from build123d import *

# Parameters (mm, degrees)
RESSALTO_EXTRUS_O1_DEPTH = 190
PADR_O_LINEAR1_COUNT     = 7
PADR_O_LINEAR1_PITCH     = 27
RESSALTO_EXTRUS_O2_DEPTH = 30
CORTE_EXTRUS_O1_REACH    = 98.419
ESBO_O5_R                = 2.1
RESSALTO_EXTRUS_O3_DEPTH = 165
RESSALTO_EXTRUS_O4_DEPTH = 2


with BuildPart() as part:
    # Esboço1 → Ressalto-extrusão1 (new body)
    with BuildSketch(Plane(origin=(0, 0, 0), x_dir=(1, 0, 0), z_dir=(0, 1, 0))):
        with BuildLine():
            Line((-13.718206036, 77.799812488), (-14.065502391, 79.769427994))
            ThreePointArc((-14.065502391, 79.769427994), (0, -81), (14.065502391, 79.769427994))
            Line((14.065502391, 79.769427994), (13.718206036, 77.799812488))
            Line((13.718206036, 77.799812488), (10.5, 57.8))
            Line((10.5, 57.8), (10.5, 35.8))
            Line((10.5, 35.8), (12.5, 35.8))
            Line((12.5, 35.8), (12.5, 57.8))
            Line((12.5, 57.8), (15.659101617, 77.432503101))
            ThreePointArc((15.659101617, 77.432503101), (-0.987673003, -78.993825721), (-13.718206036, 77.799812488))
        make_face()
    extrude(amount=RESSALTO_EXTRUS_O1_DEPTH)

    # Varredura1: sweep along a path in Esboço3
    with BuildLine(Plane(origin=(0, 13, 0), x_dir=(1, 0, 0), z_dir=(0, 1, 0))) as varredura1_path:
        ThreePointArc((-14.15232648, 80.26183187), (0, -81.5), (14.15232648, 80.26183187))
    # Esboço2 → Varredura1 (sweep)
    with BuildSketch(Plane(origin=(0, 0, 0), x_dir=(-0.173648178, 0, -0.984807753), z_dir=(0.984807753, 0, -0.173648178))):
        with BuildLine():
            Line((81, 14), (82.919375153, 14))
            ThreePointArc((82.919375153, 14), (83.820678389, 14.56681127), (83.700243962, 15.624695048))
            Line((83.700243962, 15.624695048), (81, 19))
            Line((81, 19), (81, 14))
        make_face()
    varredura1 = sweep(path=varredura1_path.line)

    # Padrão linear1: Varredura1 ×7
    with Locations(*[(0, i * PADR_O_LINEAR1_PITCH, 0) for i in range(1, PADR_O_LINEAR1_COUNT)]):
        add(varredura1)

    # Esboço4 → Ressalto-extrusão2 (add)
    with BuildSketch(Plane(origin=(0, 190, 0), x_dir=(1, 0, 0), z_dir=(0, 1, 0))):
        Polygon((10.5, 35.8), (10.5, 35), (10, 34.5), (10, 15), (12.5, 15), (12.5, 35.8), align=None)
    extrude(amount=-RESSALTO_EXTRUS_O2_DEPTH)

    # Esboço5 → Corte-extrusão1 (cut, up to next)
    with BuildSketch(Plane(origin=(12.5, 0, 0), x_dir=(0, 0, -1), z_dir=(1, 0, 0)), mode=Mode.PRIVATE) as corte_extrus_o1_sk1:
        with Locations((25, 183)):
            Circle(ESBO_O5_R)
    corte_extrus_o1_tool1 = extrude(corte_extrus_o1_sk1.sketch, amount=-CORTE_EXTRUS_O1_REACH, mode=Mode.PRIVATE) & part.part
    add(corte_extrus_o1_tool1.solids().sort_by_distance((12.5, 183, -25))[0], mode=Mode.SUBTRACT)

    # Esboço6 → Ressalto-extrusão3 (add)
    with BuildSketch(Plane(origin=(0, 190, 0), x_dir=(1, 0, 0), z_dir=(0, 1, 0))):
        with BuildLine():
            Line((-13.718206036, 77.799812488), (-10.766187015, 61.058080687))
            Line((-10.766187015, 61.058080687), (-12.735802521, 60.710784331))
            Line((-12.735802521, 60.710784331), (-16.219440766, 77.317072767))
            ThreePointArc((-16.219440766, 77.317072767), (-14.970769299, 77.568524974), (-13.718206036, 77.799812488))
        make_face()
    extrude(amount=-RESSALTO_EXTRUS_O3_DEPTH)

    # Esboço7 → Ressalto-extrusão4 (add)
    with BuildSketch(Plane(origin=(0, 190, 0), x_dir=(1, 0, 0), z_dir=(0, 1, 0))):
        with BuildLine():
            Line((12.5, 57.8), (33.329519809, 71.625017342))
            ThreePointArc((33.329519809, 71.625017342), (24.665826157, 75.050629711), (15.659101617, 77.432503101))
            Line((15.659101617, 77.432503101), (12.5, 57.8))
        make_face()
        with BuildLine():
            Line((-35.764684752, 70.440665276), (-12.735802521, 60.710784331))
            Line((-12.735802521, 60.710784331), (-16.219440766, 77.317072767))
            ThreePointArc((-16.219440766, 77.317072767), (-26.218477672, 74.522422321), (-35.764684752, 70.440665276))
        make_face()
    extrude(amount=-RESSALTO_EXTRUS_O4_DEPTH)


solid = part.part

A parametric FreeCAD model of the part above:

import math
import FreeCAD as App
import Part
import Sketcher
Q = App.Units.Quantity


def add_polygon(sketch, points):
    """Adds a closed chain of lines whose ends are joined by coincident constraints."""
    first, n = sketch.GeometryCount, len(points)
    for a, b in zip(points, points[1:] + points[:1]):
        sketch.addGeometry(Part.LineSegment(App.Vector(*a, 0), App.Vector(*b, 0)), False)
    for i in range(n):
        sketch.addConstraint(Sketcher.Constraint("Coincident", first + i, 2, first + (i + 1) % n, 1))

doc = App.newDocument("Part")
params = doc.addObject("Spreadsheet::Sheet", "Params")
for row, (alias, value) in enumerate([
    ("sketch1_radius", "81 mm"),
    ("sketch1_radius2", "79 mm"),
    ("sketch1_width", "2 mm"),
    ("sketch1_height", "22 mm"),
    ("pad1_length", "190 mm"),
    ("sketch2_radius", "1 mm"),
    ("sketch2_height", "5 mm"),
    ("sketch3_radius", "81.5 mm"),
    ("linearpattern_pitch", "27 mm"),
    ("sketch4_width", "2 mm"),
    ("sketch4_width2", "2.5 mm"),
    ("sketch4_height", "0.8 mm"),
    ("sketch4_height2", "19.5 mm"),
    ("pad2_length", "30 mm"),
    ("sketch5_diameter", "4.2 mm"),
    ("sketch6_radius", "78.999999 mm"),
    ("sketch6_length", "17 mm"),
    ("sketch6_length2", "2 mm"),
    ("pad3_length", "165 mm"),
    ("sketch7_radius", "79 mm"),
    ("sketch7_length", "25 mm"),
    ("pad4_length", "2 mm"),
], start=1):
    params.set(f"A{row}", alias)
    params.set(f"B{row}", "=" + value)
    params.setAlias(f"B{row}", alias)

body = doc.addObject("PartDesign::Body", "Body")

# Sketch on XZ plane
sketch1 = body.newObject("Sketcher::SketchObject", "Sketch")
sketch1.AttachmentSupport = (doc.getObject("XZ_Plane"), [""])
sketch1.MapMode = "FlatFace"
sketch1.addGeometry(Part.LineSegment(App.Vector(-13.7, -77.8, 0), App.Vector(-14.1, -79.8, 0)), False)
sketch1.addGeometry(Part.ArcOfCircle(Part.Circle(App.Vector(0, 0, 0), App.Vector(0, 0, 1), 81), math.radians(-80), math.radians(260)), False)
sketch1.addGeometry(Part.LineSegment(App.Vector(14.1, -79.8, 0), App.Vector(13.7, -77.8, 0)), False)
sketch1.addGeometry(Part.LineSegment(App.Vector(13.7, -77.8, 0), App.Vector(10.5, -57.8, 0)), False)
sketch1.addGeometry(Part.LineSegment(App.Vector(10.5, -57.8, 0), App.Vector(10.5, -35.8, 0)), False)
sketch1.addGeometry(Part.LineSegment(App.Vector(10.5, -35.8, 0), App.Vector(12.5, -35.8, 0)), False)
sketch1.addGeometry(Part.LineSegment(App.Vector(12.5, -35.8, 0), App.Vector(12.5, -57.8, 0)), False)
sketch1.addGeometry(Part.LineSegment(App.Vector(12.5, -57.8, 0), App.Vector(15.7, -77.4, 0)), False)
sketch1.addGeometry(Part.ArcOfCircle(Part.Circle(App.Vector(0, 0, 0), App.Vector(0, 0, 1), 79), math.radians(-79), math.radians(260)), False)
sketch1.addConstraint(Sketcher.Constraint("Coincident", 0, 2, 1, 2))
sketch1.addConstraint(Sketcher.Constraint("Coincident", 1, 1, 2, 1))
sketch1.addConstraint(Sketcher.Constraint("Coincident", 2, 2, 3, 1))
sketch1.addConstraint(Sketcher.Constraint("Coincident", 3, 2, 4, 1))
sketch1.addConstraint(Sketcher.Constraint("Coincident", 4, 2, 5, 1))
sketch1.addConstraint(Sketcher.Constraint("Coincident", 5, 2, 6, 1))
sketch1.addConstraint(Sketcher.Constraint("Coincident", 6, 2, 7, 1))
sketch1.addConstraint(Sketcher.Constraint("Coincident", 7, 2, 8, 1))
sketch1.addConstraint(Sketcher.Constraint("Coincident", 8, 2, 0, 1))
sketch1.addConstraint(Sketcher.Constraint("Vertical", 4))
sketch1.addConstraint(Sketcher.Constraint("Horizontal", 5))
sketch1.addConstraint(Sketcher.Constraint("Vertical", 6))
sketch1.addConstraint(Sketcher.Constraint("Coincident", 1, 3, -1, 1))
sketch1.addConstraint(Sketcher.Constraint("Coincident", 8, 3, -1, 1))
sketch1.addConstraint(Sketcher.Constraint("Symmetric", 2, 2, 8, 2, -2))
sketch1.addConstraint(Sketcher.Constraint("Parallel", 3, 7))
sketch1.addConstraint(Sketcher.Constraint("Horizontal", 0, 2, 1, 1))
sketch1.addConstraint(Sketcher.Constraint("Horizontal", 3, 2, 6, 2))
sketch1.addConstraint(Sketcher.Constraint("Radius", 1, 81.0))
sketch1.addConstraint(Sketcher.Constraint("Radius", 8, 79.0))
sketch1.addConstraint(Sketcher.Constraint("DistanceX", 5, 1, 5, 2, 2.0))
sketch1.addConstraint(Sketcher.Constraint("DistanceY", 4, 1, 4, 2, 22.0))
sketch1.addConstraint(Sketcher.Constraint("Angle", 0, Q("-100 deg")))
sketch1.addConstraint(Sketcher.Constraint("DistanceX", -1, 1, 3, 2, 10.5))
sketch1.addConstraint(Sketcher.Constraint("DistanceY", 3, 2, -1, 1, 57.8))
sketch1.addConstraint(Sketcher.Constraint("DistanceX", -1, 1, 7, 2, 15.659102))
sketch1.setExpression("Constraints[18]", "Params.sketch1_radius")
sketch1.setExpression("Constraints[19]", "Params.sketch1_radius2")
sketch1.setExpression("Constraints[20]", "Params.sketch1_width")
sketch1.setExpression("Constraints[21]", "Params.sketch1_height")
pad1 = body.newObject("PartDesign::Pad", "Pad")
pad1.Profile = sketch1
pad1.setExpression("Length", "Params.pad1_length")
pad1.Reversed = True

# Sketch on an angled plane
sketch2 = body.newObject("Sketcher::SketchObject", "Sketch001")
sketch2.Placement = App.Placement(App.Vector(0, 0, 0), App.Rotation(App.Vector(-0.173648178, 0, -0.984807753), App.Vector(0, 1, 0), App.Vector(0.984807753, 0, -0.173648178), "ZXY"))
sketch2.addGeometry(Part.LineSegment(App.Vector(81, 14, 0), App.Vector(82.9, 14, 0)), False)
sketch2.addGeometry(Part.ArcOfCircle(Part.Circle(App.Vector(82.9, 15, 0), App.Vector(0, 0, 1), 1), math.radians(-90), math.radians(39)), False)
sketch2.addGeometry(Part.LineSegment(App.Vector(83.7, 15.6, 0), App.Vector(81, 19, 0)), False)
sketch2.addGeometry(Part.LineSegment(App.Vector(81, 19, 0), App.Vector(81, 14, 0)), False)
sketch2.addConstraint(Sketcher.Constraint("Tangent", 0, 2, 1, 1))
sketch2.addConstraint(Sketcher.Constraint("Tangent", 1, 2, 2, 1))
sketch2.addConstraint(Sketcher.Constraint("Coincident", 2, 2, 3, 1))
sketch2.addConstraint(Sketcher.Constraint("Coincident", 3, 2, 0, 1))
sketch2.addConstraint(Sketcher.Constraint("Horizontal", 0))
sketch2.addConstraint(Sketcher.Constraint("Vertical", 3))
sketch2.addConstraint(Sketcher.Constraint("Radius", 1, 1.0))
sketch2.addConstraint(Sketcher.Constraint("DistanceY", 3, 2, 3, 1, 5.0))
sketch2.addConstraint(Sketcher.Constraint("DistanceY", -1, 1, 1, 3, 15.0))
sketch2.addConstraint(Sketcher.Constraint("DistanceX", -1, 1, 2, 2, 81.0))
sketch2.addConstraint(Sketcher.Constraint("Distance", 2, 4.322499))
sketch2.setExpression("Constraints[6]", "Params.sketch2_radius")
sketch2.setExpression("Constraints[7]", "Params.sketch2_height")

# Sketch on XZ plane
sketch3 = body.newObject("Sketcher::SketchObject", "Sketch002")
sketch3.AttachmentSupport = (doc.getObject("XZ_Plane"), [""])
sketch3.MapMode = "FlatFace"
sketch3.AttachmentOffset = App.Placement(App.Vector(0, 0, -13), App.Rotation())
sketch3.addGeometry(Part.ArcOfCircle(Part.Circle(App.Vector(0, 0, 0), App.Vector(0, 0, 1), 82), math.radians(-80), math.radians(260)), False)
sketch3.addConstraint(Sketcher.Constraint("Coincident", 0, 3, -1, 1))
sketch3.addConstraint(Sketcher.Constraint("Radius", 0, 81.5))
sketch3.addConstraint(Sketcher.Constraint("DistanceY", 0, 1, -1, 1, 80.261832))
sketch3.addConstraint(Sketcher.Constraint("DistanceY", 0, 2, -1, 1, 80.261832))
sketch3.setExpression("Constraints[1]", "Params.sketch3_radius")
doc.recompute()

additivepipe = body.newObject("PartDesign::AdditivePipe", "AdditivePipe")
additivepipe.Profile = sketch2
additivepipe.Spine = (sketch3, ["Edge1"])
doc.recompute()

linearpattern = body.newObject("PartDesign::LinearPattern", "LinearPattern")
linearpattern.Originals = [additivepipe]
linearpattern.Direction = (doc.getObject("Y_Axis"), [""])
linearpattern.Mode = "offset"
linearpattern.setExpression("Offset", "Params.linearpattern_pitch")
linearpattern.Occurrences = 7
body.Tip = linearpattern

# Sketch on XZ plane
sketch4 = body.newObject("Sketcher::SketchObject", "Sketch003")
sketch4.AttachmentSupport = (doc.getObject("XZ_Plane"), [""])
sketch4.MapMode = "FlatFace"
sketch4.AttachmentOffset = App.Placement(App.Vector(0, 0, -190), App.Rotation())
add_polygon(sketch4, [(10.5, -35.8), (10.5, -35), (10, -34.5), (10, -15), (12.5, -15), (12.5, -35.8)])  # lines 0-5
sketch4.addConstraint(Sketcher.Constraint("Vertical", 0))
sketch4.addConstraint(Sketcher.Constraint("Vertical", 2))
sketch4.addConstraint(Sketcher.Constraint("Horizontal", 3))
sketch4.addConstraint(Sketcher.Constraint("Vertical", 4))
sketch4.addConstraint(Sketcher.Constraint("Horizontal", 5))
sketch4.addConstraint(Sketcher.Constraint("DistanceX", 5, 2, 5, 1, 2.0))
sketch4.addConstraint(Sketcher.Constraint("Angle", 1, Q("135 deg")))
sketch4.addConstraint(Sketcher.Constraint("DistanceX", 3, 1, 3, 2, 2.5))
sketch4.addConstraint(Sketcher.Constraint("DistanceY", 0, 1, 0, 2, 0.8))
sketch4.addConstraint(Sketcher.Constraint("DistanceY", 2, 1, 2, 2, 19.5))
sketch4.addConstraint(Sketcher.Constraint("DistanceY", 0, 2, -1, 1, 35.0))
sketch4.addConstraint(Sketcher.Constraint("DistanceX", -1, 1, 1, 2, 10.0))
sketch4.setExpression("Constraints[11]", "Params.sketch4_width")
sketch4.setExpression("Constraints[13]", "Params.sketch4_width2")
sketch4.setExpression("Constraints[14]", "Params.sketch4_height")
sketch4.setExpression("Constraints[15]", "Params.sketch4_height2")
pad2 = body.newObject("PartDesign::Pad", "Pad001")
pad2.Profile = sketch4
pad2.setExpression("Length", "Params.pad2_length")

# Sketch on YZ plane
sketch5 = body.newObject("Sketcher::SketchObject", "Sketch004")
sketch5.AttachmentSupport = (doc.getObject("YZ_Plane"), [""])
sketch5.MapMode = "FlatFace"
sketch5.AttachmentOffset = App.Placement(App.Vector(0, 0, 12.5), App.Rotation())
sketch5.addGeometry(Part.Circle(App.Vector(183, -25, 0), App.Vector(0, 0, 1), 2.1), False)
sketch5.addConstraint(Sketcher.Constraint("Diameter", 0, 4.2))
sketch5.addConstraint(Sketcher.Constraint("DistanceX", -1, 1, 0, 3, 183.0))
sketch5.addConstraint(Sketcher.Constraint("DistanceY", 0, 3, -1, 1, 25.0))
sketch5.setExpression("Constraints[0]", "Params.sketch5_diameter")
pocket1 = body.newObject("PartDesign::Pocket", "Pocket")
pocket1.Profile = sketch5
pocket1.Type = "UpToFirst"

# Sketch on XZ plane
sketch6 = body.newObject("Sketcher::SketchObject", "Sketch005")
sketch6.AttachmentSupport = (doc.getObject("XZ_Plane"), [""])
sketch6.MapMode = "FlatFace"
sketch6.AttachmentOffset = App.Placement(App.Vector(0, 0, -190), App.Rotation())
sketch6.addGeometry(Part.LineSegment(App.Vector(-10.8, -61.1, 0), App.Vector(-13.7, -77.8, 0)), False)
sketch6.addGeometry(Part.ArcOfCircle(Part.Circle(App.Vector(0, 0, 0), App.Vector(0, 0, 1), 79), math.radians(-101.85), math.radians(-100)), False)
sketch6.addGeometry(Part.LineSegment(App.Vector(-16.2, -77.3, 0), App.Vector(-12.7, -60.7, 0)), False)
sketch6.addGeometry(Part.LineSegment(App.Vector(-12.7, -60.7, 0), App.Vector(-10.8, -61.1, 0)), False)
sketch6.addConstraint(Sketcher.Constraint("Coincident", 0, 2, 1, 2))
sketch6.addConstraint(Sketcher.Constraint("Coincident", 1, 1, 2, 1))
sketch6.addConstraint(Sketcher.Constraint("Coincident", 2, 2, 3, 1))
sketch6.addConstraint(Sketcher.Constraint("Coincident", 3, 2, 0, 1))
sketch6.addConstraint(Sketcher.Constraint("Coincident", 1, 3, -1, 1))
sketch6.addConstraint(Sketcher.Constraint("Perpendicular", 0, 3))
sketch6.addConstraint(Sketcher.Constraint("Radius", 1, 78.999999))
sketch6.addConstraint(Sketcher.Constraint("Angle", 0, Q("-100 deg")))
sketch6.addConstraint(Sketcher.Constraint("Distance", 0, 17.0))
sketch6.addConstraint(Sketcher.Constraint("Distance", 3, 2.0))
sketch6.addConstraint(Sketcher.Constraint("Distance", 2, 16.96775))
sketch6.addConstraint(Sketcher.Constraint("DistanceX", 1, 1, -1, 1, 16.219441))
sketch6.setExpression("Constraints[6]", "Params.sketch6_radius")
sketch6.setExpression("Constraints[8]", "Params.sketch6_length")
sketch6.setExpression("Constraints[9]", "Params.sketch6_length2")
pad3 = body.newObject("PartDesign::Pad", "Pad002")
pad3.Profile = sketch6
pad3.setExpression("Length", "Params.pad3_length")

# Sketch on XZ plane
sketch7 = body.newObject("Sketcher::SketchObject", "Sketch006")
sketch7.AttachmentSupport = (doc.getObject("XZ_Plane"), [""])
sketch7.MapMode = "FlatFace"
sketch7.AttachmentOffset = App.Placement(App.Vector(0, 0, -190), App.Rotation())
sketch7.addGeometry(Part.LineSegment(App.Vector(12, -58, 0), App.Vector(33, -72, 0)), False)
sketch7.addGeometry(Part.ArcOfCircle(Part.Circle(App.Vector(0, 0, 0), App.Vector(0, 0, 1), 79), math.radians(-78.57), math.radians(-65.05)), False)
sketch7.addGeometry(Part.LineSegment(App.Vector(16, -77, 0), App.Vector(12, -58, 0)), False)
sketch7.addGeometry(Part.LineSegment(App.Vector(-36, -70, 0), App.Vector(-13, -61, 0)), False)
sketch7.addGeometry(Part.LineSegment(App.Vector(-13, -61, 0), App.Vector(-16, -77, 0)), False)
sketch7.addGeometry(Part.ArcOfCircle(Part.Circle(App.Vector(0, 0, 0), App.Vector(0, 0, 1), 79), math.radians(-116.92), math.radians(-101.85)), False)
sketch7.addConstraint(Sketcher.Constraint("Coincident", 0, 2, 1, 2))
sketch7.addConstraint(Sketcher.Constraint("Coincident", 1, 1, 2, 1))
sketch7.addConstraint(Sketcher.Constraint("Coincident", 2, 2, 0, 1))
sketch7.addConstraint(Sketcher.Constraint("Coincident", 3, 2, 4, 1))
sketch7.addConstraint(Sketcher.Constraint("Coincident", 4, 2, 5, 2))
sketch7.addConstraint(Sketcher.Constraint("Coincident", 5, 1, 3, 1))
sketch7.addConstraint(Sketcher.Constraint("Coincident", 1, 3, -1, 1))
sketch7.addConstraint(Sketcher.Constraint("Coincident", 5, 3, -1, 1))
sketch7.addConstraint(Sketcher.Constraint("Equal", 1, 5))
sketch7.addConstraint(Sketcher.Constraint("Equal", 0, 3))
sketch7.addConstraint(Sketcher.Constraint("Radius", 1, 79.0))
sketch7.addConstraint(Sketcher.Constraint("Distance", 0, 25.0))
sketch7.addConstraint(Sketcher.Constraint("DistanceX", -1, 1, 2, 2, 12.5))
sketch7.addConstraint(Sketcher.Constraint("DistanceY", 2, 2, -1, 1, 57.8))
sketch7.addConstraint(Sketcher.Constraint("DistanceX", -1, 1, 1, 1, 15.659102))
sketch7.addConstraint(Sketcher.Constraint("Distance", 4, 16.96775))
sketch7.addConstraint(Sketcher.Constraint("DistanceX", 4, 2, -1, 1, 16.219441))
sketch7.addConstraint(Sketcher.Constraint("DistanceY", 1, 1, 3, 2, 16.721719))
sketch7.setExpression("Constraints[10]", "Params.sketch7_radius")
sketch7.setExpression("Constraints[11]", "Params.sketch7_length")
pad4 = body.newObject("PartDesign::Pad", "Pad003")
pad4.Profile = sketch7
pad4.setExpression("Length", "Params.pad4_length")

doc.recompute()
